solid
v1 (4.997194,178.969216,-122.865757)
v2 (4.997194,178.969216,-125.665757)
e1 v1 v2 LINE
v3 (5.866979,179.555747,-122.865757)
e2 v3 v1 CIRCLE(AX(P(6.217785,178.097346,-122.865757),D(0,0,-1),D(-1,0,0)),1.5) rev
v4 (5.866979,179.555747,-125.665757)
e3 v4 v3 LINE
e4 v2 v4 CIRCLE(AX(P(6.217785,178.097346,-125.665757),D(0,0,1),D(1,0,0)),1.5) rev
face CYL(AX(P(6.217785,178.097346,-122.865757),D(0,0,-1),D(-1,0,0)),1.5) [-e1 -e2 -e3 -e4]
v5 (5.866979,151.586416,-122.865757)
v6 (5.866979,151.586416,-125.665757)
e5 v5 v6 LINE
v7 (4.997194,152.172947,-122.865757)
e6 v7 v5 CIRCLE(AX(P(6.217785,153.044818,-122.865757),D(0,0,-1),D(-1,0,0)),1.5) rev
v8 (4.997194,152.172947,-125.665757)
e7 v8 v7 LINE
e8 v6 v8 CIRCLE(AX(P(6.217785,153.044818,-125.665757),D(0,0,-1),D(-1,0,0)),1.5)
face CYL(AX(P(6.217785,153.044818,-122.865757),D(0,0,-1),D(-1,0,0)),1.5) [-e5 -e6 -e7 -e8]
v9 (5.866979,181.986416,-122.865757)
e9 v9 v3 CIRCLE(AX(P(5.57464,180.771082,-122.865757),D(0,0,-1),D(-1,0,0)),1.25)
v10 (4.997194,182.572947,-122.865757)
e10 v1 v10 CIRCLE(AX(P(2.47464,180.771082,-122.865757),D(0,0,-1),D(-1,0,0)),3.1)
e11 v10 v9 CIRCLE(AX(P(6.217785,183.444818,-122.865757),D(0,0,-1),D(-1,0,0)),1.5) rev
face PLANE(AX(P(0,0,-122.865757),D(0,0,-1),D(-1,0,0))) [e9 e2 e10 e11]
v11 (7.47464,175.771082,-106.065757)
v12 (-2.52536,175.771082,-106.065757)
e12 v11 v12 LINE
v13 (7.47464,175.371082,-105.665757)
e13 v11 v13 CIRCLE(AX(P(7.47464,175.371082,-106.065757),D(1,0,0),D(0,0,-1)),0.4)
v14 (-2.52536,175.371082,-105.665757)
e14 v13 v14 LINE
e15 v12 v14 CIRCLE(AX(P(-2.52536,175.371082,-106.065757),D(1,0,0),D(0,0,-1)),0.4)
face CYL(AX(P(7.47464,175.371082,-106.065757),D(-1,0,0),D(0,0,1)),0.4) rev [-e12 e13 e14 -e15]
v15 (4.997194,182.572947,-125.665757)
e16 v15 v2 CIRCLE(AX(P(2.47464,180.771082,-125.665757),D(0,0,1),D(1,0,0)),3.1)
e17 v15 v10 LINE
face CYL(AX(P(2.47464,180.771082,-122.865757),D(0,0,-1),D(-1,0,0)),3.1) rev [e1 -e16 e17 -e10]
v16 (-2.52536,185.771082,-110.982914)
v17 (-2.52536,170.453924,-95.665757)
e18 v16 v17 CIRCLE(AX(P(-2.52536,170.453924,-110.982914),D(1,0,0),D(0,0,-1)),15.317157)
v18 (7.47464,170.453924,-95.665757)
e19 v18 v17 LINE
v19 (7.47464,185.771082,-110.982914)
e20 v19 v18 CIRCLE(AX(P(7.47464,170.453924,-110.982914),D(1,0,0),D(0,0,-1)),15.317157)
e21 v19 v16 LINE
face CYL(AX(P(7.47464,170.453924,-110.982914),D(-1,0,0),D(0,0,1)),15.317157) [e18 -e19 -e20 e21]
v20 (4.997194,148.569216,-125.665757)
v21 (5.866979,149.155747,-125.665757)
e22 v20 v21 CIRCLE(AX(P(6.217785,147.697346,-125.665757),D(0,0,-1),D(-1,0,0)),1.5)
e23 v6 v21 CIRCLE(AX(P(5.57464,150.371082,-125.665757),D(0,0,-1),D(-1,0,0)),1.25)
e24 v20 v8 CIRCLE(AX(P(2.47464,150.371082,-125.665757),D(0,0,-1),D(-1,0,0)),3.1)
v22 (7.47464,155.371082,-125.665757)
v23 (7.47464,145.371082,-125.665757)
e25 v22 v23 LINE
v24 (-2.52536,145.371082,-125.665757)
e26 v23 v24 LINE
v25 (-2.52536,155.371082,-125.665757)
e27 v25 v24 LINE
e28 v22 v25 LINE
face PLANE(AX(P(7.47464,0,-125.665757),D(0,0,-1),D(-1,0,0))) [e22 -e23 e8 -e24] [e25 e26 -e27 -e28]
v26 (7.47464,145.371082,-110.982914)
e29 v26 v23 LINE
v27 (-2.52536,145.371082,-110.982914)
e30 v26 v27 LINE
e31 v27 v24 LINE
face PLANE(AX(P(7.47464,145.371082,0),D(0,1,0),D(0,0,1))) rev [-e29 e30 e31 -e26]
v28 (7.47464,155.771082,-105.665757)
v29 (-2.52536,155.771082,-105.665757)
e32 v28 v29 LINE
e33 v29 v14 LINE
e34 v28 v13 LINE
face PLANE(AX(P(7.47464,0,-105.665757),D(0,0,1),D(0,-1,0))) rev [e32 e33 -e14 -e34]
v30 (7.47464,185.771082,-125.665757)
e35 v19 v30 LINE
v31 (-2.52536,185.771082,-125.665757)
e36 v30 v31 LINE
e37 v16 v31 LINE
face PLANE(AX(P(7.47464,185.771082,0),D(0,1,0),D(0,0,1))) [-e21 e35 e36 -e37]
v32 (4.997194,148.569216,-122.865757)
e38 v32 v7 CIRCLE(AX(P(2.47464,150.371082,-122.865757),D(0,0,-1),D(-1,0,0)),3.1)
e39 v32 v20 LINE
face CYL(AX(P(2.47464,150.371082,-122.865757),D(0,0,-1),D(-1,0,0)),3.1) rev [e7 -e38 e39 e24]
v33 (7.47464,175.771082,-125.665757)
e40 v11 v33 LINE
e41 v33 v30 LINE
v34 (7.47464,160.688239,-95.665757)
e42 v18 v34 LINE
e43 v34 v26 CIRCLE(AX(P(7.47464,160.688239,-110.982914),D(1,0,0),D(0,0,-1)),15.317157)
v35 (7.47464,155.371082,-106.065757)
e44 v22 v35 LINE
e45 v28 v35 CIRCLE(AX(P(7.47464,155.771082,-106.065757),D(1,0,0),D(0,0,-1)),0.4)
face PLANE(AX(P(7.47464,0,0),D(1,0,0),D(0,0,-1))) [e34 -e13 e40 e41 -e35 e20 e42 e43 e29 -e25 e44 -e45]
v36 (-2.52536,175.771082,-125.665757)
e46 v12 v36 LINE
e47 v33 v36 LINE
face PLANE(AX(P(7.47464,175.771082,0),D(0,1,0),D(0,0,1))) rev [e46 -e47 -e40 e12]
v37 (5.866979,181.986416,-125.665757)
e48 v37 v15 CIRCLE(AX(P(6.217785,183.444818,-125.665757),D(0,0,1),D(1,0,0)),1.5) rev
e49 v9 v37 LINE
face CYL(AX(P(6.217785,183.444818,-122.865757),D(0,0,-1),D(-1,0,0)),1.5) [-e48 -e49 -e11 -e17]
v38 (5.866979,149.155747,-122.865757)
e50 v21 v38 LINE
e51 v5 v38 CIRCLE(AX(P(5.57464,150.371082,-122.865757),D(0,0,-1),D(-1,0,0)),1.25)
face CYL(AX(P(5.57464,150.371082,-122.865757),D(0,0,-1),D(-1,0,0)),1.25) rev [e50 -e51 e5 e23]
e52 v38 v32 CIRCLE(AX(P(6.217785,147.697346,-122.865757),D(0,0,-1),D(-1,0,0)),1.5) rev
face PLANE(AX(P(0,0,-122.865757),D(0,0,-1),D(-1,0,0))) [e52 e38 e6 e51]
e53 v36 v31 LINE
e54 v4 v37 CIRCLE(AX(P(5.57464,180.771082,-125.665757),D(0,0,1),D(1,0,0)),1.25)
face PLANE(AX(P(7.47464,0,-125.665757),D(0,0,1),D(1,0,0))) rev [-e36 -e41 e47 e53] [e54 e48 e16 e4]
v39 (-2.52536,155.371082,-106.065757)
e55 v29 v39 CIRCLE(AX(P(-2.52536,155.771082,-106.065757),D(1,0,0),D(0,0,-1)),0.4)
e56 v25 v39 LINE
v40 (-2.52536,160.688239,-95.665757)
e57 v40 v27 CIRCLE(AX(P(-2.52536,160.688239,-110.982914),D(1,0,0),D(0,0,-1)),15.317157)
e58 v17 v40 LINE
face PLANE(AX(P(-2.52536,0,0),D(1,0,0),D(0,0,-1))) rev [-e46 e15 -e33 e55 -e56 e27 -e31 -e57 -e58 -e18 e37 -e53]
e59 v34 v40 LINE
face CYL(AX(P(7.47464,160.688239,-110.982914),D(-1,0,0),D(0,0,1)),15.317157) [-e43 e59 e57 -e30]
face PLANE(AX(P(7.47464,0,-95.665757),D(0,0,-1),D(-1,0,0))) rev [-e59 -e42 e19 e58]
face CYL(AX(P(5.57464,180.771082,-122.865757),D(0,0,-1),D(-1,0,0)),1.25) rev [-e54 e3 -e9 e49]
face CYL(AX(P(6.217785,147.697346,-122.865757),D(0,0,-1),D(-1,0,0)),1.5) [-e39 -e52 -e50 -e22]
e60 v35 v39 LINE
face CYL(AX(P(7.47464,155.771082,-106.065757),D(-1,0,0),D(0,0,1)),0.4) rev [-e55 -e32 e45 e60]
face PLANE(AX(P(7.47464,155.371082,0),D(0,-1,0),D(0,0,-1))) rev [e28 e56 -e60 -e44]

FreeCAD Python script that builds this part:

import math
import FreeCAD as App
import Part
import Sketcher

V = App.Vector


def edges_at(feature, points):
    """Names of the edges that pass closest to the given points."""
    edges = feature.Shape.Edges
    near = lambda p: min(range(len(edges)), key=lambda i: edges[i].distToShape(Part.Vertex(*p))[0])
    return sorted({f"Edge{near(p) + 1}" for p in points})

doc = App.newDocument("Part")
body = doc.addObject("PartDesign::Body", "Body")

# Sketch on YZ plane
sketch1 = doc.addObject("Sketcher::SketchObject", "Sketch")
body.addObject(sketch1)
sketch1.AttachmentSupport = (doc.YZ_Plane, [""])
sketch1.MapMode = "FlatFace"
sketch1.AttachmentOffset = App.Placement(V(0, 0, -2.52536), App.Rotation())
sketch1.addGeometry([
    Part.LineSegment(V(175.77, -106.07, 0), V(175.77, -125.67, 0)),  # 0
    Part.LineSegment(V(175.77, -125.67, 0), V(185.77, -125.67, 0)),  # 1
    Part.LineSegment(V(185.77, -125.67, 0), V(185.77, -110.98, 0)),  # 2
    Part.ArcOfCircle(Part.Circle(V(170.45, -110.98, 0), V(0, 0, 1), 15.32), math.radians(0), math.radians(90)),  # 3
    Part.LineSegment(V(170.45, -95.67, 0), V(160.69, -95.67, 0)),  # 4
    Part.ArcOfCircle(Part.Circle(V(160.69, -110.98, 0), V(0, 0, 1), 15.32), math.radians(90), math.radians(180)),  # 5
    Part.LineSegment(V(145.37, -110.98, 0), V(145.37, -125.67, 0)),  # 6
    Part.LineSegment(V(145.37, -125.67, 0), V(155.37, -125.67, 0)),  # 7
    Part.LineSegment(V(155.37, -125.67, 0), V(155.37, -106.07, 0)),  # 8
    Part.ArcOfCircle(Part.Circle(V(155.77, -106.07, 0), V(0, 0, 1), 0.4), math.radians(90), math.radians(180)),  # 9
    Part.LineSegment(V(155.77, -105.67, 0), V(175.37, -105.67, 0)),  # 10
    Part.ArcOfCircle(Part.Circle(V(175.37, -106.07, 0), V(0, 0, 1), 0.4), math.radians(0), math.radians(90)),  # 11
], False)
sketch1.addConstraint([
    Sketcher.Constraint("Coincident", 0, 2, 1, 1),
    Sketcher.Constraint("Coincident", 1, 2, 2, 1),
    Sketcher.Constraint("Tangent", 2, 2, 3, 1),
    Sketcher.Constraint("Tangent", 3, 2, 4, 1),
    Sketcher.Constraint("Tangent", 4, 2, 5, 1),
    Sketcher.Constraint("Tangent", 5, 2, 6, 1),
    Sketcher.Constraint("Coincident", 6, 2, 7, 1),
    Sketcher.Constraint("Coincident", 7, 2, 8, 1),
    Sketcher.Constraint("Tangent", 8, 2, 9, 2),
    Sketcher.Constraint("Tangent", 9, 1, 10, 1),
    Sketcher.Constraint("Tangent", 10, 2, 11, 2),
    Sketcher.Constraint("Tangent", 11, 1, 0, 1),
    Sketcher.Constraint("Vertical", 0),
    Sketcher.Constraint("Horizontal", 1),
    Sketcher.Constraint("Vertical", 2),
    Sketcher.Constraint("Horizontal", 4),
    Sketcher.Constraint("Vertical", 6),
    Sketcher.Constraint("Horizontal", 7),
    Sketcher.Constraint("Vertical", 8),
    Sketcher.Constraint("Horizontal", 10),
    Sketcher.Constraint("Equal", 3, 5),
    Sketcher.Constraint("Equal", 9, 11),
    Sketcher.Constraint("Horizontal", 1, 2, 6, 2),
    Sketcher.Constraint("Equal", 1, 7),
    Sketcher.Constraint("Equal", 10, 0),
    Sketcher.Constraint("Radius", 9, 0.4),
    Sketcher.Constraint("DistanceX", 1, 1, 1, 2, 10.0),
    Sketcher.Constraint("DistanceX", 10, 1, 10, 2, 19.6),
    Sketcher.Constraint("DistanceY", 9, 1, 4, 2, 10.0),
    Sketcher.Constraint("Radius", 3, 15.317157),
    Sketcher.Constraint("DistanceX", -1, 1, 5, 3, 160.688239),
    Sketcher.Constraint("DistanceY", 3, 3, -1, 1, 110.982914),
])
pad1 = doc.addObject("PartDesign::Pad", "Pad")
body.addObject(pad1)
pad1.Profile = sketch1
pad1.Length = 10

# Sketch on XY plane
sketch2 = doc.addObject("Sketcher::SketchObject", "Sketch001")
body.addObject(sketch2)
sketch2.AttachmentSupport = (doc.XY_Plane, [""])
sketch2.MapMode = "FlatFace"
sketch2.AttachmentOffset = App.Placement(V(0, 0, -126.865757), App.Rotation())
sketch2.addGeometry([
    Part.ArcOfCircle(Part.Circle(V(2.5, 150.4, 0), V(0, 0, 1), 3.1), math.radians(23), math.radians(337)),
    Part.ArcOfCircle(Part.Circle(V(5.6, 150.4, 0), V(0, 0, 1), 1.2), math.radians(-102), math.radians(102)),
    Part.ArcOfCircle(Part.Circle(V(2.5, 180.8, 0), V(0, 0, 1), 3.1), math.radians(23), math.radians(337)),
    Part.ArcOfCircle(Part.Circle(V(5.6, 180.8, 0), V(0, 0, 1), 1.2), math.radians(-102), math.radians(102)),
], False)
sketch2.addConstraint([
    Sketcher.Constraint("Coincident", 0, 1, 1, 2),
    Sketcher.Constraint("Coincident", 1, 1, 0, 2),
    Sketcher.Constraint("Coincident", 2, 1, 3, 2),
    Sketcher.Constraint("Coincident", 3, 1, 2, 2),
    Sketcher.Constraint("Equal", 0, 2),
    Sketcher.Constraint("Equal", 1, 3),
    Sketcher.Constraint("Horizontal", 0, 3, 1, 3),
    Sketcher.Constraint("Horizontal", 2, 3, 3, 3),
    Sketcher.Constraint("Vertical", 0, 3, 2, 3),
    Sketcher.Constraint("Vertical", 1, 3, 3, 3),
    Sketcher.Constraint("Radius", 0, 3.1),
    Sketcher.Constraint("Radius", 1, 1.25),
    Sketcher.Constraint("DistanceX", 0, 3, 1, 3, 3.1),
    Sketcher.Constraint("DistanceY", 0, 3, 2, 3, 30.4),
    Sketcher.Constraint("DistanceX", -1, 1, 0, 3, 2.47464),
    Sketcher.Constraint("DistanceY", -1, 1, 0, 3, 150.371082),
])
pocket1 = doc.addObject("PartDesign::Pocket", "Pocket")
body.addObject(pocket1)
pocket1.Profile = sketch2
pocket1.Length = 4
pocket1.Reversed = True
doc.recompute()

fillet = doc.addObject("PartDesign::Fillet", "Fillet")
body.addObject(fillet)
fillet.Base = (pocket1, edges_at(pocket1, [
    (5.323, 179.547, -124.266),
    (5.323, 181.995, -124.266),
    (5.323, 151.595, -124.266),
    (5.323, 149.147, -124.266),
]))
fillet.Radius = 1.5

doc.recompute()
